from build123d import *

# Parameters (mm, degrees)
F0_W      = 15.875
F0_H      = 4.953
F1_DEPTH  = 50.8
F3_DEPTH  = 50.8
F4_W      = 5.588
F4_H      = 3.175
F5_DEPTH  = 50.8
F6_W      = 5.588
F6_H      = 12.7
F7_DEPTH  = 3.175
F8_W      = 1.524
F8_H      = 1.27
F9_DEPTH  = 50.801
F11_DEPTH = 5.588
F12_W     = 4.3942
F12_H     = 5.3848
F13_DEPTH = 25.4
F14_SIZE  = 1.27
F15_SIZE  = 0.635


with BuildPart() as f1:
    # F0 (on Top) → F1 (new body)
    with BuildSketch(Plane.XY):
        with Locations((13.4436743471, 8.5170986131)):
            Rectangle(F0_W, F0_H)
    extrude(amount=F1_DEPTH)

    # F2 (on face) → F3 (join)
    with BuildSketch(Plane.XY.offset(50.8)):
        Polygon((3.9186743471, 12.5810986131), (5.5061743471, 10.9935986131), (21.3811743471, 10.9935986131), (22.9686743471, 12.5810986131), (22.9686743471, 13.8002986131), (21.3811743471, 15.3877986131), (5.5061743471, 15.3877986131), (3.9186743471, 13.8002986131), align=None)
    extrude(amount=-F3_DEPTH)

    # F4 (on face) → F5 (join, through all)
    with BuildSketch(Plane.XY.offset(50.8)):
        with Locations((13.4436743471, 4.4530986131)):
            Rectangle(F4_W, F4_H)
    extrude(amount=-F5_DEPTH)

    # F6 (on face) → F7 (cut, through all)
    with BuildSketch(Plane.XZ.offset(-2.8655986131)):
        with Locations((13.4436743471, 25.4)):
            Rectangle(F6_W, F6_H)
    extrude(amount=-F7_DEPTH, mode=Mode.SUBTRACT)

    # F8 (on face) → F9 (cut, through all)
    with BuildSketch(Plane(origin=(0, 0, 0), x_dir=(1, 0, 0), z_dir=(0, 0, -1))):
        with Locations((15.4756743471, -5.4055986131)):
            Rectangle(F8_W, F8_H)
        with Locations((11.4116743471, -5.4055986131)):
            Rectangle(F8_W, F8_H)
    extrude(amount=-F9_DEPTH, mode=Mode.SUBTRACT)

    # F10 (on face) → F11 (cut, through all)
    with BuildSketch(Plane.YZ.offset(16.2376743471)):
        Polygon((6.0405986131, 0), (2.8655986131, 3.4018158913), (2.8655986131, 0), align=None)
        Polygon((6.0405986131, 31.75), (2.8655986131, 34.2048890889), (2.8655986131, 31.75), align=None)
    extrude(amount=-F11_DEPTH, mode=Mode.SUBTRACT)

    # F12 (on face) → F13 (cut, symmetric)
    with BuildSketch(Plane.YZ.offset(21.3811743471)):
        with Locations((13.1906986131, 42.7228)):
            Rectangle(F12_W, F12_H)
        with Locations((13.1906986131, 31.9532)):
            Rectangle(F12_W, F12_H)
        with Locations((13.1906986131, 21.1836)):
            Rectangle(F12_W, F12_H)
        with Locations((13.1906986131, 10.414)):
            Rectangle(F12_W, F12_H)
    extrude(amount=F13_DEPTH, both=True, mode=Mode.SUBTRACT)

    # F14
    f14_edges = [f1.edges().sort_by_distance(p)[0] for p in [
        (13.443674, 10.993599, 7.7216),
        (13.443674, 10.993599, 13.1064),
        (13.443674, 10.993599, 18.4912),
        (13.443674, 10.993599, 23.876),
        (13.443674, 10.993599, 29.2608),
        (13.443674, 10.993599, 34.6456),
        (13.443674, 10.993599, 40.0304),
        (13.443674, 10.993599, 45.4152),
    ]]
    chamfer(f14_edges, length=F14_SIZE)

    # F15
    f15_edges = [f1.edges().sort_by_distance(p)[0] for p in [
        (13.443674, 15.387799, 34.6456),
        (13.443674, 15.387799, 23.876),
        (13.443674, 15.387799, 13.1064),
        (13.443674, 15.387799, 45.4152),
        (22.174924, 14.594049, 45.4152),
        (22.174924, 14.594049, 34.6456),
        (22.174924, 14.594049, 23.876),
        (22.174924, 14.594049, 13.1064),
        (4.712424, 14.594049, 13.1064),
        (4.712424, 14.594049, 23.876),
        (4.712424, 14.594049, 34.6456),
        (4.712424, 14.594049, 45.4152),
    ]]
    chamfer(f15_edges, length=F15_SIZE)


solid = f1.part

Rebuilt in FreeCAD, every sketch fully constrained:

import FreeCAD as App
import Part
import Sketcher

V = App.Vector
Q = App.Units.Quantity


def edges_at(feature, points):
    """Names of the edges that pass closest to the given points."""
    edges = feature.Shape.Edges
    near = lambda p: min(range(len(edges)), key=lambda i: edges[i].distToShape(Part.Vertex(*p))[0])
    return sorted({f"Edge{near(p) + 1}" for p in points})

doc = App.newDocument("Part")
body = doc.addObject("PartDesign::Body", "Body")

# Sketch on XY plane
sketch1 = doc.addObject("Sketcher::SketchObject", "Sketch")
body.addObject(sketch1)
sketch1.AttachmentSupport = (doc.XY_Plane, [""])
sketch1.MapMode = "FlatFace"
sketch1.addGeometry([
    Part.LineSegment(V(5.506174, 10.993599, 0), V(5.506174, 6.040599, 0)),
    Part.LineSegment(V(5.506174, 6.040599, 0), V(21.381174, 6.040599, 0)),
    Part.LineSegment(V(21.381174, 6.040599, 0), V(21.381174, 10.993599, 0)),
    Part.LineSegment(V(21.381174, 10.993599, 0), V(5.506174, 10.993599, 0)),
], False)
sketch1.addConstraint([
    Sketcher.Constraint("Coincident", 0, 2, 1, 1),
    Sketcher.Constraint("Coincident", 1, 2, 2, 1),
    Sketcher.Constraint("Coincident", 2, 2, 3, 1),
    Sketcher.Constraint("Coincident", 3, 2, 0, 1),
    Sketcher.Constraint("Vertical", 0),
    Sketcher.Constraint("Horizontal", 1),
    Sketcher.Constraint("Vertical", 2),
    Sketcher.Constraint("Horizontal", 3),
    Sketcher.Constraint("DistanceX", 1, 1, 1, 2, Q("0.625 in")),
    Sketcher.Constraint("DistanceY", 0, 2, 0, 1, Q("0.195 in")),
    Sketcher.Constraint("DistanceY", -1, 1, 0, 2, 6.040599),
    Sketcher.Constraint("DistanceX", -1, 1, 0, 2, 5.506174),
])
pad1 = doc.addObject("PartDesign::Pad", "Pad")
body.addObject(pad1)
pad1.Profile = sketch1
pad1.Length = Q("2 in")

# Sketch on XY plane
sketch2 = doc.addObject("Sketcher::SketchObject", "Sketch001")
body.addObject(sketch2)
sketch2.AttachmentSupport = (doc.XY_Plane, [""])
sketch2.MapMode = "FlatFace"
sketch2.AttachmentOffset = App.Placement(V(0, 0, 2 * 25.4), App.Rotation())
sketch2.addGeometry([
    Part.LineSegment(V(3.918674, 12.581099, 0), V(5.506174, 10.993599, 0)),  # 0
    Part.LineSegment(V(5.506174, 10.993599, 0), V(21.381174, 10.993599, 0)),  # 1
    Part.LineSegment(V(21.381174, 10.993599, 0), V(22.968674, 12.581099, 0)),  # 2
    Part.LineSegment(V(22.968674, 12.581099, 0), V(22.968674, 13.800299, 0)),  # 3
    Part.LineSegment(V(22.968674, 13.800299, 0), V(21.381174, 15.387799, 0)),  # 4
    Part.LineSegment(V(21.381174, 15.387799, 0), V(5.506174, 15.387799, 0)),  # 5
    Part.LineSegment(V(5.506174, 15.387799, 0), V(3.918674, 13.800299, 0)),  # 6
    Part.LineSegment(V(3.918674, 13.800299, 0), V(3.918674, 12.581099, 0)),  # 7
], False)
sketch2.addConstraint([
    Sketcher.Constraint("Coincident", 0, 2, 1, 1),
    Sketcher.Constraint("Coincident", 1, 2, 2, 1),
    Sketcher.Constraint("Coincident", 2, 2, 3, 1),
    Sketcher.Constraint("Coincident", 3, 2, 4, 1),
    Sketcher.Constraint("Coincident", 4, 2, 5, 1),
    Sketcher.Constraint("Coincident", 5, 2, 6, 1),
    Sketcher.Constraint("Coincident", 6, 2, 7, 1),
    Sketcher.Constraint("Coincident", 7, 2, 0, 1),
    Sketcher.Constraint("Horizontal", 1),
    Sketcher.Constraint("Vertical", 3),
    Sketcher.Constraint("Horizontal", 5),
    Sketcher.Constraint("Vertical", 7),
    Sketcher.Constraint("Perpendicular", 0, 2),
    Sketcher.Constraint("Perpendicular", 2, 4),
    Sketcher.Constraint("Perpendicular", 4, 6),
    Sketcher.Constraint("Horizontal", 3, 2, 6, 2),
    Sketcher.Constraint("Horizontal", 2, 2, 7, 2),
    Sketcher.Constraint("Vertical", 1, 2, 4, 2),
    Sketcher.Constraint("Vertical", 0, 2, 5, 2),
    Sketcher.Constraint("DistanceX", 1, 1, 1, 2, Q("0.625 in")),
    Sketcher.Constraint("DistanceY", 3, 1, 3, 2, Q("0.048 in")),
    Sketcher.Constraint("DistanceX", 6, 2, 3, 2, Q("0.75 in")),
    Sketcher.Constraint("DistanceY", -1, 1, 0, 2, 10.993599),
    Sketcher.Constraint("DistanceX", -1, 1, 0, 2, 5.506174),
])
pad2 = doc.addObject("PartDesign::Pad", "Pad001")
body.addObject(pad2)
pad2.Profile = sketch2
pad2.Length = Q("2 in")
pad2.Reversed = True

# Sketch on XY plane
sketch3 = doc.addObject("Sketcher::SketchObject", "Sketch002")
body.addObject(sketch3)
sketch3.AttachmentSupport = (doc.XY_Plane, [""])
sketch3.MapMode = "FlatFace"
sketch3.AttachmentOffset = App.Placement(V(0, 0, 2 * 25.4), App.Rotation())
sketch3.addGeometry([
    Part.LineSegment(V(10.649674, 6.040599, 0), V(10.649674, 2.865599, 0)),
    Part.LineSegment(V(10.649674, 2.865599, 0), V(16.237674, 2.865599, 0)),
    Part.LineSegment(V(16.237674, 2.865599, 0), V(16.237674, 6.040599, 0)),
    Part.LineSegment(V(16.237674, 6.040599, 0), V(10.649674, 6.040599, 0)),
], False)
sketch3.addConstraint([
    Sketcher.Constraint("Coincident", 0, 2, 1, 1),
    Sketcher.Constraint("Coincident", 1, 2, 2, 1),
    Sketcher.Constraint("Coincident", 2, 2, 3, 1),
    Sketcher.Constraint("Coincident", 3, 2, 0, 1),
    Sketcher.Constraint("Vertical", 0),
    Sketcher.Constraint("Horizontal", 1),
    Sketcher.Constraint("Vertical", 2),
    Sketcher.Constraint("Horizontal", 3),
    Sketcher.Constraint("DistanceX", 1, 1, 1, 2, Q("0.22 in")),
    Sketcher.Constraint("DistanceY", 0, 2, 0, 1, Q("0.125 in")),
    Sketcher.Constraint("DistanceY", -1, 1, 0, 2, 2.865599),
    Sketcher.Constraint("DistanceX", -1, 1, 0, 2, 10.649674),
])
pad3 = doc.addObject("PartDesign::Pad", "Pad002")
body.addObject(pad3)
pad3.Profile = sketch3
pad3.Length = Q("2 in")
pad3.Reversed = True

# Sketch on XZ plane
sketch4 = doc.addObject("Sketcher::SketchObject", "Sketch003")
body.addObject(sketch4)
sketch4.AttachmentSupport = (doc.XZ_Plane, [""])
sketch4.MapMode = "FlatFace"
sketch4.AttachmentOffset = App.Placement(V(0, 0, -2.865599), App.Rotation())
sketch4.addGeometry([
    Part.LineSegment(V(10.649674, 31.75, 0), V(10.649674, 19.05, 0)),
    Part.LineSegment(V(10.649674, 19.05, 0), V(16.237674, 19.05, 0)),
    Part.LineSegment(V(16.237674, 19.05, 0), V(16.237674, 31.75, 0)),
    Part.LineSegment(V(16.237674, 31.75, 0), V(10.649674, 31.75, 0)),
], False)
sketch4.addConstraint([
    Sketcher.Constraint("Coincident", 0, 2, 1, 1),
    Sketcher.Constraint("Coincident", 1, 2, 2, 1),
    Sketcher.Constraint("Coincident", 2, 2, 3, 1),
    Sketcher.Constraint("Coincident", 3, 2, 0, 1),
    Sketcher.Constraint("Vertical", 0),
    Sketcher.Constraint("Horizontal", 1),
    Sketcher.Constraint("Vertical", 2),
    Sketcher.Constraint("Horizontal", 3),
    Sketcher.Constraint("DistanceY", 0, 2, 0, 1, Q("0.5 in")),
    Sketcher.Constraint("DistanceX", 1, 1, 1, 2, Q("0.22 in")),
    Sketcher.Constraint("DistanceY", -1, 1, 0, 2, Q("0.75 in")),
    Sketcher.Constraint("DistanceX", -1, 1, 0, 2, 10.649674),
])
pocket1 = doc.addObject("PartDesign::Pocket", "Pocket")
body.addObject(pocket1)
pocket1.Profile = sketch4
pocket1.Length = Q("0.125 in")

# Sketch on XY plane
sketch5 = doc.addObject("Sketcher::SketchObject", "Sketch004")
body.addObject(sketch5)
sketch5.AttachmentSupport = (doc.XY_Plane, [""])
sketch5.MapMode = "FlatFace"
sketch5.addGeometry([
    Part.LineSegment(V(14.713674, 4.770599, 0), V(14.713674, 6.040599, 0)),  # 0
    Part.LineSegment(V(14.713674, 6.040599, 0), V(16.237674, 6.040599, 0)),  # 1
    Part.LineSegment(V(16.237674, 6.040599, 0), V(16.237674, 4.770599, 0)),  # 2
    Part.LineSegment(V(16.237674, 4.770599, 0), V(14.713674, 4.770599, 0)),  # 3
    Part.LineSegment(V(10.649674, 4.770599, 0), V(10.649674, 6.040599, 0)),  # 4
    Part.LineSegment(V(10.649674, 6.040599, 0), V(12.173674, 6.040599, 0)),  # 5
    Part.LineSegment(V(12.173674, 6.040599, 0), V(12.173674, 4.770599, 0)),  # 6
    Part.LineSegment(V(12.173674, 4.770599, 0), V(10.649674, 4.770599, 0)),  # 7
], False)
sketch5.addConstraint([
    Sketcher.Constraint("Coincident", 0, 2, 1, 1),
    Sketcher.Constraint("Coincident", 1, 2, 2, 1),
    Sketcher.Constraint("Coincident", 2, 2, 3, 1),
    Sketcher.Constraint("Coincident", 3, 2, 0, 1),
    Sketcher.Constraint("Coincident", 4, 2, 5, 1),
    Sketcher.Constraint("Coincident", 5, 2, 6, 1),
    Sketcher.Constraint("Coincident", 6, 2, 7, 1),
    Sketcher.Constraint("Coincident", 7, 2, 4, 1),
    Sketcher.Constraint("Vertical", 0),
    Sketcher.Constraint("Horizontal", 1),
    Sketcher.Constraint("Vertical", 2),
    Sketcher.Constraint("Horizontal", 3),
    Sketcher.Constraint("Vertical", 4),
    Sketcher.Constraint("Horizontal", 5),
    Sketcher.Constraint("Vertical", 6),
    Sketcher.Constraint("Horizontal", 7),
    Sketcher.Constraint("Horizontal", 1, 2, 4, 2),
    Sketcher.Constraint("Horizontal", 3, 2, 6, 2),
    Sketcher.Constraint("Equal", 3, 5),
    Sketcher.Constraint("DistanceX", 1, 1, 1, 2, Q("0.06 in")),
    Sketcher.Constraint("DistanceY", 0, 1, 0, 2, Q("0.05 in")),
    Sketcher.Constraint("DistanceX", 5, 2, 0, 2, Q("0.1 in")),
    Sketcher.Constraint("DistanceY", -1, 1, 0, 2, 6.040599),
    Sketcher.Constraint("DistanceX", -1, 1, 0, 2, 14.713674),
])
pocket2 = doc.addObject("PartDesign::Pocket", "Pocket001")
body.addObject(pocket2)
pocket2.Profile = sketch5
pocket2.Type = "ThroughAll"
pocket2.Reversed = True

# Sketch on YZ plane
sketch6 = doc.addObject("Sketcher::SketchObject", "Sketch005")
body.addObject(sketch6)
sketch6.AttachmentSupport = (doc.YZ_Plane, [""])
sketch6.MapMode = "FlatFace"
sketch6.AttachmentOffset = App.Placement(V(0, 0, 16.237674), App.Rotation())
sketch6.addGeometry([
    Part.LineSegment(V(6.040599, 0, 0), V(2.865599, 3.401816, 0)),  # 0
    Part.LineSegment(V(2.865599, 3.401816, 0), V(2.865599, 0, 0)),  # 1
    Part.LineSegment(V(2.865599, 0, 0), V(6.040599, 0, 0)),  # 2
    Part.LineSegment(V(6.040599, 31.75, 0), V(2.865599, 34.204889, 0)),  # 3
    Part.LineSegment(V(2.865599, 34.204889, 0), V(2.865599, 31.75, 0)),  # 4
    Part.LineSegment(V(2.865599, 31.75, 0), V(6.040599, 31.75, 0)),  # 5
], False)
sketch6.addConstraint([
    Sketcher.Constraint("Coincident", 0, 2, 1, 1),
    Sketcher.Constraint("Coincident", 1, 2, 2, 1),
    Sketcher.Constraint("Coincident", 2, 2, 0, 1),
    Sketcher.Constraint("Coincident", 3, 2, 4, 1),
    Sketcher.Constraint("Coincident", 4, 2, 5, 1),
    Sketcher.Constraint("Coincident", 5, 2, 3, 1),
    Sketcher.Constraint("Vertical", 1),
    Sketcher.Constraint("Horizontal", 2),
    Sketcher.Constraint("Vertical", 4),
    Sketcher.Constraint("Horizontal", 5),
    Sketcher.Constraint("PointOnObject", 1, 2, -1),
    Sketcher.Constraint("Vertical", 1, 2, 3, 2),
    Sketcher.Constraint("Vertical", 2, 2, 5, 2),
    Sketcher.Constraint("DistanceX", 2, 1, 2, 2, Q("0.125 in")),
    Sketcher.Constraint("DistanceY", -1, 1, 4, 2, Q("1.25 in")),
    Sketcher.Constraint("Distance", 0, Q("0.1831998 in")),
    Sketcher.Constraint("DistanceY", 4, 2, 4, 1, 2.454889),
    Sketcher.Constraint("DistanceX", -1, 1, 0, 2, 2.865599),
])
pocket3 = doc.addObject("PartDesign::Pocket", "Pocket002")
body.addObject(pocket3)
pocket3.Profile = sketch6
pocket3.Type = "ThroughAll"

# Sketch on YZ plane
sketch7 = doc.addObject("Sketcher::SketchObject", "Sketch006")
body.addObject(sketch7)
sketch7.AttachmentSupport = (doc.YZ_Plane, [""])
sketch7.MapMode = "FlatFace"
sketch7.AttachmentOffset = App.Placement(V(0, 0, 21.381174), App.Rotation())
sketch7.addGeometry([
    Part.LineSegment(V(10.993599, 45.4152, 0), V(10.993599, 40.0304, 0)),  # 0
    Part.LineSegment(V(10.993599, 40.0304, 0), V(15.387799, 40.0304, 0)),  # 1
    Part.LineSegment(V(15.387799, 40.0304, 0), V(15.387799, 45.4152, 0)),  # 2
    Part.LineSegment(V(15.387799, 45.4152, 0), V(10.993599, 45.4152, 0)),  # 3
    Part.LineSegment(V(10.993599, 34.6456, 0), V(10.993599, 29.2608, 0)),  # 4
    Part.LineSegment(V(10.993599, 29.2608, 0), V(15.387799, 29.2608, 0)),  # 5
    Part.LineSegment(V(15.387799, 29.2608, 0), V(15.387799, 34.6456, 0)),  # 6
    Part.LineSegment(V(15.387799, 34.6456, 0), V(10.993599, 34.6456, 0)),  # 7
    Part.LineSegment(V(10.993599, 23.876, 0), V(10.993599, 18.4912, 0)),  # 8
    Part.LineSegment(V(10.993599, 18.4912, 0), V(15.387799, 18.4912, 0)),  # 9
    Part.LineSegment(V(15.387799, 18.4912, 0), V(15.387799, 23.876, 0)),  # 10
    Part.LineSegment(V(15.387799, 23.876, 0), V(10.993599, 23.876, 0)),  # 11
    Part.LineSegment(V(10.993599, 13.1064, 0), V(10.993599, 7.7216, 0)),  # 12
    Part.LineSegment(V(10.993599, 7.7216, 0), V(15.387799, 7.7216, 0)),  # 13
    Part.LineSegment(V(15.387799, 7.7216, 0), V(15.387799, 13.1064, 0)),  # 14
    Part.LineSegment(V(15.387799, 13.1064, 0), V(10.993599, 13.1064, 0)),  # 15
], False)
sketch7.addConstraint([
    Sketcher.Constraint("Coincident", 0, 2, 1, 1),
    Sketcher.Constraint("Coincident", 1, 2, 2, 1),
    Sketcher.Constraint("Coincident", 2, 2, 3, 1),
    Sketcher.Constraint("Coincident", 3, 2, 0, 1),
    Sketcher.Constraint("Coincident", 4, 2, 5, 1),
    Sketcher.Constraint("Coincident", 5, 2, 6, 1),
    Sketcher.Constraint("Coincident", 6, 2, 7, 1),
    Sketcher.Constraint("Coincident", 7, 2, 4, 1),
    Sketcher.Constraint("Coincident", 8, 2, 9, 1),
    Sketcher.Constraint("Coincident", 9, 2, 10, 1),
    Sketcher.Constraint("Coincident", 10, 2, 11, 1),
    Sketcher.Constraint("Coincident", 11, 2, 8, 1),
    Sketcher.Constraint("Coincident", 12, 2, 13, 1),
    Sketcher.Constraint("Coincident", 13, 2, 14, 1),
    Sketcher.Constraint("Coincident", 14, 2, 15, 1),
    Sketcher.Constraint("Coincident", 15, 2, 12, 1),
    Sketcher.Constraint("Vertical", 0),
    Sketcher.Constraint("Horizontal", 1),
    Sketcher.Constraint("Vertical", 2),
    Sketcher.Constraint("Horizontal", 3),
    Sketcher.Constraint("Vertical", 4),
    Sketcher.Constraint("Horizontal", 5),
    Sketcher.Constraint("Vertical", 6),
    Sketcher.Constraint("Horizontal", 7),
    Sketcher.Constraint("Vertical", 8),
    Sketcher.Constraint("Horizontal", 9),
    Sketcher.Constraint("Vertical", 10),
    Sketcher.Constraint("Horizontal", 11),
    Sketcher.Constraint("Vertical", 12),
    Sketcher.Constraint("Horizontal", 13),
    Sketcher.Constraint("Vertical", 14),
    Sketcher.Constraint("Horizontal", 15),
    Sketcher.Constraint("Vertical", 3, 2, 4, 2),
    Sketcher.Constraint("Vertical", 2, 2, 5, 2),
    Sketcher.Constraint("Vertical", 7, 2, 8, 2),
    Sketcher.Constraint("Vertical", 6, 2, 9, 2),
    Sketcher.Constraint("Vertical", 11, 2, 12, 2),
    Sketcher.Constraint("Vertical", 10, 2, 13, 2),
    Sketcher.Constraint("Equal", 2, 4),
    Sketcher.Constraint("Equal", 6, 8),
    Sketcher.Constraint("Equal", 10, 12),
    Sketcher.Constraint("DistanceX", 1, 1, 1, 2, Q("0.173 in")),
    Sketcher.Constraint("DistanceY", 0, 2, 0, 1, Q("0.212 in")),
    Sketcher.Constraint("DistanceY", -1, 1, 10, 2, Q("0.94 in")),
    Sketcher.Constraint("DistanceY", -1, 1, 0, 2, Q("1.576 in")),
    Sketcher.Constraint("DistanceY", -1, 1, 4, 2, Q("1.152 in")),
    Sketcher.Constraint("DistanceY", -1, 1, 12, 2, Q("0.304 in")),
    Sketcher.Constraint("DistanceX", -1, 1, 0, 2, 10.993599),
])
pocket4 = doc.addObject("PartDesign::Pocket", "Pocket003")
body.addObject(pocket4)
pocket4.Profile = sketch7
pocket4.Length = Q("2 in")
pocket4.Midplane = True
doc.recompute()

chamfer = doc.addObject("PartDesign::Chamfer", "Chamfer")
body.addObject(chamfer)
chamfer.Base = (pocket4, edges_at(pocket4, [
    (13.444, 10.994, 7.722),
    (13.444, 10.994, 13.106),
    (13.444, 10.994, 18.491),
    (13.444, 10.994, 23.876),
    (13.444, 10.994, 29.261),
    (13.444, 10.994, 34.646),
    (13.444, 10.994, 40.03),
    (13.444, 10.994, 45.415),
]))
chamfer.Size = Q("0.05 in")
doc.recompute()

chamfer2 = doc.addObject("PartDesign::Chamfer", "Chamfer001")
body.addObject(chamfer2)
chamfer2.Base = (chamfer, edges_at(chamfer, [
    (13.444, 15.388, 34.646),
    (13.444, 15.388, 23.876),
    (13.444, 15.388, 13.106),
    (13.444, 15.388, 45.415),
    (22.175, 14.594, 45.415),
    (22.175, 14.594, 34.646),
    (22.175, 14.594, 23.876),
    (22.175, 14.594, 13.106),
    (4.712, 14.594, 13.106),
    (4.712, 14.594, 23.876),
    (4.712, 14.594, 34.646),
    (4.712, 14.594, 45.415),
]))
chamfer2.Size = Q("0.025 in")

doc.recompute()
